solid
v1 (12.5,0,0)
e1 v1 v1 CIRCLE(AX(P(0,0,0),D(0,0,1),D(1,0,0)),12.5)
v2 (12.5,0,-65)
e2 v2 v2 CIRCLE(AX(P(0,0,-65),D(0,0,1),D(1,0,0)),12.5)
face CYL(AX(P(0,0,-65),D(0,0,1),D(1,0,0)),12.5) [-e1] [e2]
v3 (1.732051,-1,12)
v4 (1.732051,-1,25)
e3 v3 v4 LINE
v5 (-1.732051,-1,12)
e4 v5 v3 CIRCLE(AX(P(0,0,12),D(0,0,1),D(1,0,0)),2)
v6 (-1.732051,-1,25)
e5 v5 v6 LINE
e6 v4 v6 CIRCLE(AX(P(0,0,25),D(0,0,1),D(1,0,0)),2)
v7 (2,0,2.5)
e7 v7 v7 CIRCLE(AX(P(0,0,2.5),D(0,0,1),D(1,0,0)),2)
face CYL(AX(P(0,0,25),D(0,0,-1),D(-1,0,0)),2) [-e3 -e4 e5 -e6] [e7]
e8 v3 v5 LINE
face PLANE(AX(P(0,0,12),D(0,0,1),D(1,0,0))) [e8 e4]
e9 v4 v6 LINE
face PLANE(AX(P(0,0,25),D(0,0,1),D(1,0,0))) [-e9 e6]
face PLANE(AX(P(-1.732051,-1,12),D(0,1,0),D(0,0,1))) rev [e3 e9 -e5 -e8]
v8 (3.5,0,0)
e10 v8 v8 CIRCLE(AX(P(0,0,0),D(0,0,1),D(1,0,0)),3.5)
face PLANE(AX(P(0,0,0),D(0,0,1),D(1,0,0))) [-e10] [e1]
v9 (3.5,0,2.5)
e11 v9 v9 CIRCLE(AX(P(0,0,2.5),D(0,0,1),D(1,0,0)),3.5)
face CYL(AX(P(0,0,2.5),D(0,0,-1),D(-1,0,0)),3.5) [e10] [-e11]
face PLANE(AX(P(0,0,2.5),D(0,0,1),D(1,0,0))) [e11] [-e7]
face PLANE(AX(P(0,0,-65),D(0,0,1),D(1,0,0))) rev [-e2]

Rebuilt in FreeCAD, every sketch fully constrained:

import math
import FreeCAD as App
import Part
import Sketcher

V = App.Vector

doc = App.newDocument("Part")
body = doc.addObject("PartDesign::Body", "Body")

# Sketch on XY plane
sketch1 = body.newObject("Sketcher::SketchObject", "Sketch")
sketch1.AttachmentSupport = (doc.getObject("XY_Plane"), [""])
sketch1.MapMode = "FlatFace"
sketch1.addGeometry(Part.Circle(V(0, 0, 0), V(0, 0, 1), 12), False)
sketch1.addConstraint(Sketcher.Constraint("Coincident", 0, 3, -1, 1))
sketch1.addConstraint(Sketcher.Constraint("Diameter", 0, 25.0))
pad1 = body.newObject("PartDesign::Pad", "Pad")
pad1.Profile = sketch1
pad1.Length = 65
pad1.Reversed = True

# Sketch on XY plane
sketch2 = body.newObject("Sketcher::SketchObject", "Sketch001")
sketch2.AttachmentSupport = (doc.getObject("XY_Plane"), [""])
sketch2.MapMode = "FlatFace"
sketch2.addGeometry(Part.Circle(V(0, 0, 0), V(0, 0, 1), 3.5), False)
sketch2.addConstraint(Sketcher.Constraint("Coincident", 0, 3, -1, 1))
sketch2.addConstraint(Sketcher.Constraint("Diameter", 0, 7.0))
pad2 = body.newObject("PartDesign::Pad", "Pad001")
pad2.Profile = sketch2
pad2.Length = 2.5

# Sketch on XY plane
sketch3 = body.newObject("Sketcher::SketchObject", "Sketch002")
sketch3.AttachmentSupport = (doc.getObject("XY_Plane"), [""])
sketch3.MapMode = "FlatFace"
sketch3.AttachmentOffset = App.Placement(V(0, 0, 2.5), App.Rotation())
sketch3.addGeometry(Part.Circle(V(0, 0, 0), V(0, 0, 1), 2), False)
sketch3.addConstraint(Sketcher.Constraint("Coincident", 0, 3, -1, 1))
sketch3.addConstraint(Sketcher.Constraint("Diameter", 0, 4.0))
pad3 = body.newObject("PartDesign::Pad", "Pad002")
pad3.Profile = sketch3
pad3.Length = 22.5

# Sketch on XY plane
sketch4 = body.newObject("Sketcher::SketchObject", "Sketch003")
sketch4.AttachmentSupport = (doc.getObject("XY_Plane"), [""])
sketch4.MapMode = "FlatFace"
sketch4.AttachmentOffset = App.Placement(V(0, 0, 12), App.Rotation())
sketch4.addGeometry(Part.LineSegment(V(1.7, -1, 0), V(-1.7, -1, 0)), False)
sketch4.addGeometry(Part.ArcOfCircle(Part.Circle(V(0, 0, 0), V(0, 0, 1), 2), math.radians(-150), math.radians(-30)), False)
sketch4.addConstraint(Sketcher.Constraint("Coincident", 0, 1, 1, 2))
sketch4.addConstraint(Sketcher.Constraint("Coincident", 1, 1, 0, 2))
sketch4.addConstraint(Sketcher.Constraint("Horizontal", 0))
sketch4.addConstraint(Sketcher.Constraint("Coincident", 1, 3, -1, 1))
sketch4.addConstraint(Sketcher.Constraint("Radius", 1, 2.0))
sketch4.addConstraint(Sketcher.Constraint("DistanceY", 0, 1, -1, 1, 1.0))
pocket1 = body.newObject("PartDesign::Pocket", "Pocket")
pocket1.Profile = sketch4
pocket1.Length = 13
pocket1.Reversed = True

doc.recompute()
